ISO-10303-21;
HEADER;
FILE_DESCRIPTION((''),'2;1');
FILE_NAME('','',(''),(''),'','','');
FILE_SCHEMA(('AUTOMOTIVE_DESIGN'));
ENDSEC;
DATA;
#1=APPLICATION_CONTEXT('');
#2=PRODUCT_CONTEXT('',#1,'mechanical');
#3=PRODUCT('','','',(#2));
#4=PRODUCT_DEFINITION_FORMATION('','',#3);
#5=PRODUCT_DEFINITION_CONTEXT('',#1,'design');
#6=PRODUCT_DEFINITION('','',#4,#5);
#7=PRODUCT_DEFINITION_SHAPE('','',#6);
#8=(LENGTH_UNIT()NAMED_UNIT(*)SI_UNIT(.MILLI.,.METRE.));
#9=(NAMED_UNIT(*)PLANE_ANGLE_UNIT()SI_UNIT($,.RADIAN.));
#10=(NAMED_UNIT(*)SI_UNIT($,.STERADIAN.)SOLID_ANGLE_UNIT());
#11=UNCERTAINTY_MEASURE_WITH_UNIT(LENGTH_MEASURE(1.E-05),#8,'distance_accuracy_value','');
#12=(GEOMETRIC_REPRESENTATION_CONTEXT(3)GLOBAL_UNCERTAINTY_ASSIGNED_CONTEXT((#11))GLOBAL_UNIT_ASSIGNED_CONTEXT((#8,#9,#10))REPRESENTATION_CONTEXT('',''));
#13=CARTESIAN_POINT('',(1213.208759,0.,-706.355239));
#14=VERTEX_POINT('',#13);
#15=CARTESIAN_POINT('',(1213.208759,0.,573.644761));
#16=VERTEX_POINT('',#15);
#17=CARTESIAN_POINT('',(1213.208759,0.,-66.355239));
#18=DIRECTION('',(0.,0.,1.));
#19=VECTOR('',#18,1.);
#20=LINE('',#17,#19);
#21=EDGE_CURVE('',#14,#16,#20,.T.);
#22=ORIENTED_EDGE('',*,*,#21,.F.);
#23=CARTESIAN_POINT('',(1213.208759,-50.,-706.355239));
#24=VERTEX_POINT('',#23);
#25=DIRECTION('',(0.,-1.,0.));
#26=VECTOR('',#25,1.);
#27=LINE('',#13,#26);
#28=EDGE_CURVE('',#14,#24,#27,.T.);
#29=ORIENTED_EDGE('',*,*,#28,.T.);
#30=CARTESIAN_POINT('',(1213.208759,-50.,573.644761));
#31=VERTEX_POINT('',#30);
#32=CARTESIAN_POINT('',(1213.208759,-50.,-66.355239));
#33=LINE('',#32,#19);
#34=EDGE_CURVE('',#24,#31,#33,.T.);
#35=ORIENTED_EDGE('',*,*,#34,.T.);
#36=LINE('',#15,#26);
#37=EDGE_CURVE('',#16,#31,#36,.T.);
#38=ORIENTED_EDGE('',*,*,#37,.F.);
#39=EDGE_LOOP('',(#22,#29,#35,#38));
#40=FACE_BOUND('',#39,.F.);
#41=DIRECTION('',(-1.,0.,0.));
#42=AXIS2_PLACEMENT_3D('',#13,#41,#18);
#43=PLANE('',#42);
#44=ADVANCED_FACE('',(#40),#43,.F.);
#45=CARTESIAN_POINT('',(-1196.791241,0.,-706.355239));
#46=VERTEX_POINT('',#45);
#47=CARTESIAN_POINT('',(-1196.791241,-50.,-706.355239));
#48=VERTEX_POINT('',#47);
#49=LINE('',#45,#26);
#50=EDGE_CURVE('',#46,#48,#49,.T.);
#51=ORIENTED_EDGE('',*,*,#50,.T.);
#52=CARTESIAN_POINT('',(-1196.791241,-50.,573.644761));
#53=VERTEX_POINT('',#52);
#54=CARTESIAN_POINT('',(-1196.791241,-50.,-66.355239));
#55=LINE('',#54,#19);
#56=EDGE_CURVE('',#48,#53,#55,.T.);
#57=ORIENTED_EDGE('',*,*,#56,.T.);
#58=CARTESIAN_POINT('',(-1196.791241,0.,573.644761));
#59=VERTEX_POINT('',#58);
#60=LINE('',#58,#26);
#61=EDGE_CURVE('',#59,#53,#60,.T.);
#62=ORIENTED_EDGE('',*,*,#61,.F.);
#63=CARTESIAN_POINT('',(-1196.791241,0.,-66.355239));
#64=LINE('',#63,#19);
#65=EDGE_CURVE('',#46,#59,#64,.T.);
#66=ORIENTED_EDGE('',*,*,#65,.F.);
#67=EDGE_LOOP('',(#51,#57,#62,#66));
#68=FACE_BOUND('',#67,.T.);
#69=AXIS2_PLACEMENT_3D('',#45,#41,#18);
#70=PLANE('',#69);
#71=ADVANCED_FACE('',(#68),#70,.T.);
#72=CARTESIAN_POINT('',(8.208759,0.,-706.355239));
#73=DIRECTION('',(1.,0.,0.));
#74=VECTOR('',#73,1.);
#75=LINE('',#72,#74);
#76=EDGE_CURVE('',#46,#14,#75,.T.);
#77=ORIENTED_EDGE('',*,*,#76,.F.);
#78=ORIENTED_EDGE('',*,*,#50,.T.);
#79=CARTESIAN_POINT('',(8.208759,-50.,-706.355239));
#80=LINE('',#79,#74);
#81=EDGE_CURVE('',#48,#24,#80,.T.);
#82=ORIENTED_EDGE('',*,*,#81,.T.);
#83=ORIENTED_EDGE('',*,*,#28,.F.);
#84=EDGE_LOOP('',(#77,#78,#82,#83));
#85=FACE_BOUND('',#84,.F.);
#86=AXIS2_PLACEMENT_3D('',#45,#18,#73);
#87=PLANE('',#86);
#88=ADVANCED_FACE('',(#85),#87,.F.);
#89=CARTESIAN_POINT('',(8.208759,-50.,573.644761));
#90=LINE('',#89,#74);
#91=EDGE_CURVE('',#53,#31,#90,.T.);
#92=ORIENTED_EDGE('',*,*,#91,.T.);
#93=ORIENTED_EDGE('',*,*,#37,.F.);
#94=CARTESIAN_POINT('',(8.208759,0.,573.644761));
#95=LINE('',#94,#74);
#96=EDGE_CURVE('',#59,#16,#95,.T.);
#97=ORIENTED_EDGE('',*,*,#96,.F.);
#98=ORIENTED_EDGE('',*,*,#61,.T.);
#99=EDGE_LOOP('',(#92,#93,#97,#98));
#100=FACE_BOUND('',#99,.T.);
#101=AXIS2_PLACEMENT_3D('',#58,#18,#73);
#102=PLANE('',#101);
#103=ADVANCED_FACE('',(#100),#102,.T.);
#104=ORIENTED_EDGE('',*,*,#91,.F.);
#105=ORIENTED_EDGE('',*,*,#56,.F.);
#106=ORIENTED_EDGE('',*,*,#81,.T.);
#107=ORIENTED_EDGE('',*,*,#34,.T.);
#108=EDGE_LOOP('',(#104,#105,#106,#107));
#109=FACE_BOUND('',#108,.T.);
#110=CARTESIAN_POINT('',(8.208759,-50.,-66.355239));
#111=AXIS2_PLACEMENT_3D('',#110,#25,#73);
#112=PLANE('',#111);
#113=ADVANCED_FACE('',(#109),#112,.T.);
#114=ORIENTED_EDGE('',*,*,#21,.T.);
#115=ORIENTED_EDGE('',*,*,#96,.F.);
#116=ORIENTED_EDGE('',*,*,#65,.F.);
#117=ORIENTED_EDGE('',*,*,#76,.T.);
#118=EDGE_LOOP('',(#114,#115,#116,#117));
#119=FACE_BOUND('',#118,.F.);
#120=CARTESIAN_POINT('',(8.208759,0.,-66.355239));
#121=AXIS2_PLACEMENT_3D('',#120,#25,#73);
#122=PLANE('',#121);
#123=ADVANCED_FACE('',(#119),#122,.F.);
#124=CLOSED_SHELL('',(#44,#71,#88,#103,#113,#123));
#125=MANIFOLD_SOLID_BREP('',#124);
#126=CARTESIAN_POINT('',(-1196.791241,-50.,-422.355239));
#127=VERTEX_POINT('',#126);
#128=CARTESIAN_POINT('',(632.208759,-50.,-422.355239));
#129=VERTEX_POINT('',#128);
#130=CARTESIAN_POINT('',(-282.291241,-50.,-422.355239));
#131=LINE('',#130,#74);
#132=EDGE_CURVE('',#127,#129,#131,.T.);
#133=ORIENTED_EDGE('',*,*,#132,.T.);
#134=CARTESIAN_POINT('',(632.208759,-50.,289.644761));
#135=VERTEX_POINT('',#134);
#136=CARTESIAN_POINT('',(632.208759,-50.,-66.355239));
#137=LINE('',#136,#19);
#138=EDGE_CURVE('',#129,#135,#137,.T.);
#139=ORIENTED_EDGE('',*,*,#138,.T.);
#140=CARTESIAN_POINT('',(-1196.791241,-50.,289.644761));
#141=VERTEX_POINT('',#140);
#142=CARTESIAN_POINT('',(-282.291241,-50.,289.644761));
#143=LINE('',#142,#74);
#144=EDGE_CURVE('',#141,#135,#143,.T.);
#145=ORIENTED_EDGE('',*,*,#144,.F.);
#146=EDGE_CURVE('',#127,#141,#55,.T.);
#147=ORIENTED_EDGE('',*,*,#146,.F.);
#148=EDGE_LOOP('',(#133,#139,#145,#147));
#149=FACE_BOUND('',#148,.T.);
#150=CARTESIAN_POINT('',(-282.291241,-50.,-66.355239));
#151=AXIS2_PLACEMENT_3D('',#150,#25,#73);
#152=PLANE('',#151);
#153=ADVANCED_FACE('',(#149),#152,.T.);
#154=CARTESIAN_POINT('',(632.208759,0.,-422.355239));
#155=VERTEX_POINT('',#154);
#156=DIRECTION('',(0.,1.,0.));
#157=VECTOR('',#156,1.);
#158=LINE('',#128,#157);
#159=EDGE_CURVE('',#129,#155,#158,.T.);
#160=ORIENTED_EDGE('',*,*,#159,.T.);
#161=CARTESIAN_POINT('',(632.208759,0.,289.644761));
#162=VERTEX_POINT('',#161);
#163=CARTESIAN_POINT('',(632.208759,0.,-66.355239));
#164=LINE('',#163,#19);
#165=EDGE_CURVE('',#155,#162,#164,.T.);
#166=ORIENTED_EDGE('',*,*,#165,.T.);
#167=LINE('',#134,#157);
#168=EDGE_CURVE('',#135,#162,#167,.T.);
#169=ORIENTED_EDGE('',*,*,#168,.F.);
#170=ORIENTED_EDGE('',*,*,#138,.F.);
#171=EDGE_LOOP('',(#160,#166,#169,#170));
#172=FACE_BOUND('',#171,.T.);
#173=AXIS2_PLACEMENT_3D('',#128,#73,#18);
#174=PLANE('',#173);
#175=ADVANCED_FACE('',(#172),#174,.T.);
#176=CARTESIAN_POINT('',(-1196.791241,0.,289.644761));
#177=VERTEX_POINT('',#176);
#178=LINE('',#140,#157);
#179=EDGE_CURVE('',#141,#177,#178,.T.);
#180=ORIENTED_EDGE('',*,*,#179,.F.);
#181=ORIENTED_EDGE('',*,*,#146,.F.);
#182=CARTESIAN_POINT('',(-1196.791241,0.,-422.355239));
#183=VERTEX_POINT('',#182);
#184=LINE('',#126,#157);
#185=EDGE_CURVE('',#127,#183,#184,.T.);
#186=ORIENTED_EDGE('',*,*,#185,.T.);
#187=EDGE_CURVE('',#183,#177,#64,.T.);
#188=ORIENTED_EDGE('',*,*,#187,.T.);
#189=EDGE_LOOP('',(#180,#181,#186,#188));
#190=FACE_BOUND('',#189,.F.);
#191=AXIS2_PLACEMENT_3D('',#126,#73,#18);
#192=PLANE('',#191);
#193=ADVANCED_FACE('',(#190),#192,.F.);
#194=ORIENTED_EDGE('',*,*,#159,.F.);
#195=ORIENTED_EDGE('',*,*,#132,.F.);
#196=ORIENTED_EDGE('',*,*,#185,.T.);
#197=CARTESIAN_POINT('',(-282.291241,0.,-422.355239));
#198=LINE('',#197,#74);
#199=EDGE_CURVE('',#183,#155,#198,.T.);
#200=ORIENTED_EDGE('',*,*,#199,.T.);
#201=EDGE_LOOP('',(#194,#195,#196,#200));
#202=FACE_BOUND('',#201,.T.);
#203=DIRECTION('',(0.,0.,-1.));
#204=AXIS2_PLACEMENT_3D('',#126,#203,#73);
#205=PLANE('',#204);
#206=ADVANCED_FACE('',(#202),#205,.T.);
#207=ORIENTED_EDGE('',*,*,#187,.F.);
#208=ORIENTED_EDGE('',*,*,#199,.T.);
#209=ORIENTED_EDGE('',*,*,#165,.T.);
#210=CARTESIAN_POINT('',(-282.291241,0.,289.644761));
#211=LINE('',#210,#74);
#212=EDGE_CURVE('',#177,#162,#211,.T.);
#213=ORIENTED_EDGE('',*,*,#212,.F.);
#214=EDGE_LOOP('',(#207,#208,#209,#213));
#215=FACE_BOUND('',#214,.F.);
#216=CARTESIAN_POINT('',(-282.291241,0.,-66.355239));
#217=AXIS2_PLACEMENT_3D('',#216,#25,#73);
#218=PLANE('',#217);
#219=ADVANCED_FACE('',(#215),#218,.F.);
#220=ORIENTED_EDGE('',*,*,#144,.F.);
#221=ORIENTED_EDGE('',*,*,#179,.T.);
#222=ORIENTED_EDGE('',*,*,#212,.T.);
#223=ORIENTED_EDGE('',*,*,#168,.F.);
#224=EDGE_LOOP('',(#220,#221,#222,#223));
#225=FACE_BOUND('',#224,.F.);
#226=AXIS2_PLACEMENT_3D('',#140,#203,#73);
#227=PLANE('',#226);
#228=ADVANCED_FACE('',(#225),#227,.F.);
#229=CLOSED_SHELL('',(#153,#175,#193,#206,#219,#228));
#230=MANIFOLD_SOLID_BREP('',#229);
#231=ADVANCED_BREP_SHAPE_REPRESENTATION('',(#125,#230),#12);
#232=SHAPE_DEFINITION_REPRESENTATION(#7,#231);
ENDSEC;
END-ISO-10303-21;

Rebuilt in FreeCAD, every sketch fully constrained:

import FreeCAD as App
import Part
import Sketcher

V = App.Vector


def add_polygon(sketch, points):
    """Adds a closed chain of lines whose ends are joined by coincident constraints."""
    first, n = sketch.GeometryCount, len(points)
    for a, b in zip(points, points[1:] + points[:1]):
        sketch.addGeometry(Part.LineSegment(App.Vector(*a, 0), App.Vector(*b, 0)), False)
    for i in range(n):
        sketch.addConstraint(Sketcher.Constraint("Coincident", first + i, 2, first + (i + 1) % n, 1))

doc = App.newDocument("Part")
body = doc.addObject("PartDesign::Body", "Body")

# Sketch on XZ plane
sketch1 = body.newObject("Sketcher::SketchObject", "Sketch")
sketch1.AttachmentSupport = (doc.getObject("XZ_Plane"), [""])
sketch1.MapMode = "FlatFace"
add_polygon(sketch1, [(-1197, 574), (-1197, -706), (1213, -706), (1213, 574)])  # lines 0-3
sketch1.addConstraint([
    Sketcher.Constraint("Vertical", 0),
    Sketcher.Constraint("Horizontal", 1),
    Sketcher.Constraint("Vertical", 2),
    Sketcher.Constraint("Horizontal", 3),
    Sketcher.Constraint("DistanceX", 1, 1, 1, 2, 2410.0),
    Sketcher.Constraint("DistanceY", 0, 2, 0, 1, 1280.0),
    Sketcher.Constraint("DistanceX", 0, 2, -1, 1, 1196.791241),
    Sketcher.Constraint("DistanceY", 0, 2, -1, 1, 706.355239),
])
pad1 = body.newObject("PartDesign::Pad", "Pad")
pad1.Profile = sketch1
pad1.Length = 50
body2 = doc.addObject("PartDesign::Body", "Body001")

# Sketch on XZ plane
sketch2 = body2.newObject("Sketcher::SketchObject", "Sketch001")
sketch2.AttachmentSupport = (doc.getObject("XZ_Plane001"), [""])
sketch2.MapMode = "FlatFace"
sketch2.AttachmentOffset = App.Placement(V(0, 0, 50), App.Rotation())
add_polygon(sketch2, [(-1197, 290), (-1197, -422), (632, -422), (632, 290)])  # lines 0-3
sketch2.addConstraint([
    Sketcher.Constraint("Vertical", 0),
    Sketcher.Constraint("Horizontal", 1),
    Sketcher.Constraint("Vertical", 2),
    Sketcher.Constraint("Horizontal", 3),
    Sketcher.Constraint("DistanceX", 1, 1, 1, 2, 1829.0),
    Sketcher.Constraint("DistanceY", 0, 2, 0, 1, 712.0),
    Sketcher.Constraint("DistanceX", 0, 2, -1, 1, 1196.791241),
    Sketcher.Constraint("DistanceY", 0, 2, -1, 1, 422.355239),
])
pad2 = body2.newObject("PartDesign::Pad", "Pad001")
pad2.Profile = sketch2
pad2.Length = 50
pad2.Reversed = True

doc.recompute()
